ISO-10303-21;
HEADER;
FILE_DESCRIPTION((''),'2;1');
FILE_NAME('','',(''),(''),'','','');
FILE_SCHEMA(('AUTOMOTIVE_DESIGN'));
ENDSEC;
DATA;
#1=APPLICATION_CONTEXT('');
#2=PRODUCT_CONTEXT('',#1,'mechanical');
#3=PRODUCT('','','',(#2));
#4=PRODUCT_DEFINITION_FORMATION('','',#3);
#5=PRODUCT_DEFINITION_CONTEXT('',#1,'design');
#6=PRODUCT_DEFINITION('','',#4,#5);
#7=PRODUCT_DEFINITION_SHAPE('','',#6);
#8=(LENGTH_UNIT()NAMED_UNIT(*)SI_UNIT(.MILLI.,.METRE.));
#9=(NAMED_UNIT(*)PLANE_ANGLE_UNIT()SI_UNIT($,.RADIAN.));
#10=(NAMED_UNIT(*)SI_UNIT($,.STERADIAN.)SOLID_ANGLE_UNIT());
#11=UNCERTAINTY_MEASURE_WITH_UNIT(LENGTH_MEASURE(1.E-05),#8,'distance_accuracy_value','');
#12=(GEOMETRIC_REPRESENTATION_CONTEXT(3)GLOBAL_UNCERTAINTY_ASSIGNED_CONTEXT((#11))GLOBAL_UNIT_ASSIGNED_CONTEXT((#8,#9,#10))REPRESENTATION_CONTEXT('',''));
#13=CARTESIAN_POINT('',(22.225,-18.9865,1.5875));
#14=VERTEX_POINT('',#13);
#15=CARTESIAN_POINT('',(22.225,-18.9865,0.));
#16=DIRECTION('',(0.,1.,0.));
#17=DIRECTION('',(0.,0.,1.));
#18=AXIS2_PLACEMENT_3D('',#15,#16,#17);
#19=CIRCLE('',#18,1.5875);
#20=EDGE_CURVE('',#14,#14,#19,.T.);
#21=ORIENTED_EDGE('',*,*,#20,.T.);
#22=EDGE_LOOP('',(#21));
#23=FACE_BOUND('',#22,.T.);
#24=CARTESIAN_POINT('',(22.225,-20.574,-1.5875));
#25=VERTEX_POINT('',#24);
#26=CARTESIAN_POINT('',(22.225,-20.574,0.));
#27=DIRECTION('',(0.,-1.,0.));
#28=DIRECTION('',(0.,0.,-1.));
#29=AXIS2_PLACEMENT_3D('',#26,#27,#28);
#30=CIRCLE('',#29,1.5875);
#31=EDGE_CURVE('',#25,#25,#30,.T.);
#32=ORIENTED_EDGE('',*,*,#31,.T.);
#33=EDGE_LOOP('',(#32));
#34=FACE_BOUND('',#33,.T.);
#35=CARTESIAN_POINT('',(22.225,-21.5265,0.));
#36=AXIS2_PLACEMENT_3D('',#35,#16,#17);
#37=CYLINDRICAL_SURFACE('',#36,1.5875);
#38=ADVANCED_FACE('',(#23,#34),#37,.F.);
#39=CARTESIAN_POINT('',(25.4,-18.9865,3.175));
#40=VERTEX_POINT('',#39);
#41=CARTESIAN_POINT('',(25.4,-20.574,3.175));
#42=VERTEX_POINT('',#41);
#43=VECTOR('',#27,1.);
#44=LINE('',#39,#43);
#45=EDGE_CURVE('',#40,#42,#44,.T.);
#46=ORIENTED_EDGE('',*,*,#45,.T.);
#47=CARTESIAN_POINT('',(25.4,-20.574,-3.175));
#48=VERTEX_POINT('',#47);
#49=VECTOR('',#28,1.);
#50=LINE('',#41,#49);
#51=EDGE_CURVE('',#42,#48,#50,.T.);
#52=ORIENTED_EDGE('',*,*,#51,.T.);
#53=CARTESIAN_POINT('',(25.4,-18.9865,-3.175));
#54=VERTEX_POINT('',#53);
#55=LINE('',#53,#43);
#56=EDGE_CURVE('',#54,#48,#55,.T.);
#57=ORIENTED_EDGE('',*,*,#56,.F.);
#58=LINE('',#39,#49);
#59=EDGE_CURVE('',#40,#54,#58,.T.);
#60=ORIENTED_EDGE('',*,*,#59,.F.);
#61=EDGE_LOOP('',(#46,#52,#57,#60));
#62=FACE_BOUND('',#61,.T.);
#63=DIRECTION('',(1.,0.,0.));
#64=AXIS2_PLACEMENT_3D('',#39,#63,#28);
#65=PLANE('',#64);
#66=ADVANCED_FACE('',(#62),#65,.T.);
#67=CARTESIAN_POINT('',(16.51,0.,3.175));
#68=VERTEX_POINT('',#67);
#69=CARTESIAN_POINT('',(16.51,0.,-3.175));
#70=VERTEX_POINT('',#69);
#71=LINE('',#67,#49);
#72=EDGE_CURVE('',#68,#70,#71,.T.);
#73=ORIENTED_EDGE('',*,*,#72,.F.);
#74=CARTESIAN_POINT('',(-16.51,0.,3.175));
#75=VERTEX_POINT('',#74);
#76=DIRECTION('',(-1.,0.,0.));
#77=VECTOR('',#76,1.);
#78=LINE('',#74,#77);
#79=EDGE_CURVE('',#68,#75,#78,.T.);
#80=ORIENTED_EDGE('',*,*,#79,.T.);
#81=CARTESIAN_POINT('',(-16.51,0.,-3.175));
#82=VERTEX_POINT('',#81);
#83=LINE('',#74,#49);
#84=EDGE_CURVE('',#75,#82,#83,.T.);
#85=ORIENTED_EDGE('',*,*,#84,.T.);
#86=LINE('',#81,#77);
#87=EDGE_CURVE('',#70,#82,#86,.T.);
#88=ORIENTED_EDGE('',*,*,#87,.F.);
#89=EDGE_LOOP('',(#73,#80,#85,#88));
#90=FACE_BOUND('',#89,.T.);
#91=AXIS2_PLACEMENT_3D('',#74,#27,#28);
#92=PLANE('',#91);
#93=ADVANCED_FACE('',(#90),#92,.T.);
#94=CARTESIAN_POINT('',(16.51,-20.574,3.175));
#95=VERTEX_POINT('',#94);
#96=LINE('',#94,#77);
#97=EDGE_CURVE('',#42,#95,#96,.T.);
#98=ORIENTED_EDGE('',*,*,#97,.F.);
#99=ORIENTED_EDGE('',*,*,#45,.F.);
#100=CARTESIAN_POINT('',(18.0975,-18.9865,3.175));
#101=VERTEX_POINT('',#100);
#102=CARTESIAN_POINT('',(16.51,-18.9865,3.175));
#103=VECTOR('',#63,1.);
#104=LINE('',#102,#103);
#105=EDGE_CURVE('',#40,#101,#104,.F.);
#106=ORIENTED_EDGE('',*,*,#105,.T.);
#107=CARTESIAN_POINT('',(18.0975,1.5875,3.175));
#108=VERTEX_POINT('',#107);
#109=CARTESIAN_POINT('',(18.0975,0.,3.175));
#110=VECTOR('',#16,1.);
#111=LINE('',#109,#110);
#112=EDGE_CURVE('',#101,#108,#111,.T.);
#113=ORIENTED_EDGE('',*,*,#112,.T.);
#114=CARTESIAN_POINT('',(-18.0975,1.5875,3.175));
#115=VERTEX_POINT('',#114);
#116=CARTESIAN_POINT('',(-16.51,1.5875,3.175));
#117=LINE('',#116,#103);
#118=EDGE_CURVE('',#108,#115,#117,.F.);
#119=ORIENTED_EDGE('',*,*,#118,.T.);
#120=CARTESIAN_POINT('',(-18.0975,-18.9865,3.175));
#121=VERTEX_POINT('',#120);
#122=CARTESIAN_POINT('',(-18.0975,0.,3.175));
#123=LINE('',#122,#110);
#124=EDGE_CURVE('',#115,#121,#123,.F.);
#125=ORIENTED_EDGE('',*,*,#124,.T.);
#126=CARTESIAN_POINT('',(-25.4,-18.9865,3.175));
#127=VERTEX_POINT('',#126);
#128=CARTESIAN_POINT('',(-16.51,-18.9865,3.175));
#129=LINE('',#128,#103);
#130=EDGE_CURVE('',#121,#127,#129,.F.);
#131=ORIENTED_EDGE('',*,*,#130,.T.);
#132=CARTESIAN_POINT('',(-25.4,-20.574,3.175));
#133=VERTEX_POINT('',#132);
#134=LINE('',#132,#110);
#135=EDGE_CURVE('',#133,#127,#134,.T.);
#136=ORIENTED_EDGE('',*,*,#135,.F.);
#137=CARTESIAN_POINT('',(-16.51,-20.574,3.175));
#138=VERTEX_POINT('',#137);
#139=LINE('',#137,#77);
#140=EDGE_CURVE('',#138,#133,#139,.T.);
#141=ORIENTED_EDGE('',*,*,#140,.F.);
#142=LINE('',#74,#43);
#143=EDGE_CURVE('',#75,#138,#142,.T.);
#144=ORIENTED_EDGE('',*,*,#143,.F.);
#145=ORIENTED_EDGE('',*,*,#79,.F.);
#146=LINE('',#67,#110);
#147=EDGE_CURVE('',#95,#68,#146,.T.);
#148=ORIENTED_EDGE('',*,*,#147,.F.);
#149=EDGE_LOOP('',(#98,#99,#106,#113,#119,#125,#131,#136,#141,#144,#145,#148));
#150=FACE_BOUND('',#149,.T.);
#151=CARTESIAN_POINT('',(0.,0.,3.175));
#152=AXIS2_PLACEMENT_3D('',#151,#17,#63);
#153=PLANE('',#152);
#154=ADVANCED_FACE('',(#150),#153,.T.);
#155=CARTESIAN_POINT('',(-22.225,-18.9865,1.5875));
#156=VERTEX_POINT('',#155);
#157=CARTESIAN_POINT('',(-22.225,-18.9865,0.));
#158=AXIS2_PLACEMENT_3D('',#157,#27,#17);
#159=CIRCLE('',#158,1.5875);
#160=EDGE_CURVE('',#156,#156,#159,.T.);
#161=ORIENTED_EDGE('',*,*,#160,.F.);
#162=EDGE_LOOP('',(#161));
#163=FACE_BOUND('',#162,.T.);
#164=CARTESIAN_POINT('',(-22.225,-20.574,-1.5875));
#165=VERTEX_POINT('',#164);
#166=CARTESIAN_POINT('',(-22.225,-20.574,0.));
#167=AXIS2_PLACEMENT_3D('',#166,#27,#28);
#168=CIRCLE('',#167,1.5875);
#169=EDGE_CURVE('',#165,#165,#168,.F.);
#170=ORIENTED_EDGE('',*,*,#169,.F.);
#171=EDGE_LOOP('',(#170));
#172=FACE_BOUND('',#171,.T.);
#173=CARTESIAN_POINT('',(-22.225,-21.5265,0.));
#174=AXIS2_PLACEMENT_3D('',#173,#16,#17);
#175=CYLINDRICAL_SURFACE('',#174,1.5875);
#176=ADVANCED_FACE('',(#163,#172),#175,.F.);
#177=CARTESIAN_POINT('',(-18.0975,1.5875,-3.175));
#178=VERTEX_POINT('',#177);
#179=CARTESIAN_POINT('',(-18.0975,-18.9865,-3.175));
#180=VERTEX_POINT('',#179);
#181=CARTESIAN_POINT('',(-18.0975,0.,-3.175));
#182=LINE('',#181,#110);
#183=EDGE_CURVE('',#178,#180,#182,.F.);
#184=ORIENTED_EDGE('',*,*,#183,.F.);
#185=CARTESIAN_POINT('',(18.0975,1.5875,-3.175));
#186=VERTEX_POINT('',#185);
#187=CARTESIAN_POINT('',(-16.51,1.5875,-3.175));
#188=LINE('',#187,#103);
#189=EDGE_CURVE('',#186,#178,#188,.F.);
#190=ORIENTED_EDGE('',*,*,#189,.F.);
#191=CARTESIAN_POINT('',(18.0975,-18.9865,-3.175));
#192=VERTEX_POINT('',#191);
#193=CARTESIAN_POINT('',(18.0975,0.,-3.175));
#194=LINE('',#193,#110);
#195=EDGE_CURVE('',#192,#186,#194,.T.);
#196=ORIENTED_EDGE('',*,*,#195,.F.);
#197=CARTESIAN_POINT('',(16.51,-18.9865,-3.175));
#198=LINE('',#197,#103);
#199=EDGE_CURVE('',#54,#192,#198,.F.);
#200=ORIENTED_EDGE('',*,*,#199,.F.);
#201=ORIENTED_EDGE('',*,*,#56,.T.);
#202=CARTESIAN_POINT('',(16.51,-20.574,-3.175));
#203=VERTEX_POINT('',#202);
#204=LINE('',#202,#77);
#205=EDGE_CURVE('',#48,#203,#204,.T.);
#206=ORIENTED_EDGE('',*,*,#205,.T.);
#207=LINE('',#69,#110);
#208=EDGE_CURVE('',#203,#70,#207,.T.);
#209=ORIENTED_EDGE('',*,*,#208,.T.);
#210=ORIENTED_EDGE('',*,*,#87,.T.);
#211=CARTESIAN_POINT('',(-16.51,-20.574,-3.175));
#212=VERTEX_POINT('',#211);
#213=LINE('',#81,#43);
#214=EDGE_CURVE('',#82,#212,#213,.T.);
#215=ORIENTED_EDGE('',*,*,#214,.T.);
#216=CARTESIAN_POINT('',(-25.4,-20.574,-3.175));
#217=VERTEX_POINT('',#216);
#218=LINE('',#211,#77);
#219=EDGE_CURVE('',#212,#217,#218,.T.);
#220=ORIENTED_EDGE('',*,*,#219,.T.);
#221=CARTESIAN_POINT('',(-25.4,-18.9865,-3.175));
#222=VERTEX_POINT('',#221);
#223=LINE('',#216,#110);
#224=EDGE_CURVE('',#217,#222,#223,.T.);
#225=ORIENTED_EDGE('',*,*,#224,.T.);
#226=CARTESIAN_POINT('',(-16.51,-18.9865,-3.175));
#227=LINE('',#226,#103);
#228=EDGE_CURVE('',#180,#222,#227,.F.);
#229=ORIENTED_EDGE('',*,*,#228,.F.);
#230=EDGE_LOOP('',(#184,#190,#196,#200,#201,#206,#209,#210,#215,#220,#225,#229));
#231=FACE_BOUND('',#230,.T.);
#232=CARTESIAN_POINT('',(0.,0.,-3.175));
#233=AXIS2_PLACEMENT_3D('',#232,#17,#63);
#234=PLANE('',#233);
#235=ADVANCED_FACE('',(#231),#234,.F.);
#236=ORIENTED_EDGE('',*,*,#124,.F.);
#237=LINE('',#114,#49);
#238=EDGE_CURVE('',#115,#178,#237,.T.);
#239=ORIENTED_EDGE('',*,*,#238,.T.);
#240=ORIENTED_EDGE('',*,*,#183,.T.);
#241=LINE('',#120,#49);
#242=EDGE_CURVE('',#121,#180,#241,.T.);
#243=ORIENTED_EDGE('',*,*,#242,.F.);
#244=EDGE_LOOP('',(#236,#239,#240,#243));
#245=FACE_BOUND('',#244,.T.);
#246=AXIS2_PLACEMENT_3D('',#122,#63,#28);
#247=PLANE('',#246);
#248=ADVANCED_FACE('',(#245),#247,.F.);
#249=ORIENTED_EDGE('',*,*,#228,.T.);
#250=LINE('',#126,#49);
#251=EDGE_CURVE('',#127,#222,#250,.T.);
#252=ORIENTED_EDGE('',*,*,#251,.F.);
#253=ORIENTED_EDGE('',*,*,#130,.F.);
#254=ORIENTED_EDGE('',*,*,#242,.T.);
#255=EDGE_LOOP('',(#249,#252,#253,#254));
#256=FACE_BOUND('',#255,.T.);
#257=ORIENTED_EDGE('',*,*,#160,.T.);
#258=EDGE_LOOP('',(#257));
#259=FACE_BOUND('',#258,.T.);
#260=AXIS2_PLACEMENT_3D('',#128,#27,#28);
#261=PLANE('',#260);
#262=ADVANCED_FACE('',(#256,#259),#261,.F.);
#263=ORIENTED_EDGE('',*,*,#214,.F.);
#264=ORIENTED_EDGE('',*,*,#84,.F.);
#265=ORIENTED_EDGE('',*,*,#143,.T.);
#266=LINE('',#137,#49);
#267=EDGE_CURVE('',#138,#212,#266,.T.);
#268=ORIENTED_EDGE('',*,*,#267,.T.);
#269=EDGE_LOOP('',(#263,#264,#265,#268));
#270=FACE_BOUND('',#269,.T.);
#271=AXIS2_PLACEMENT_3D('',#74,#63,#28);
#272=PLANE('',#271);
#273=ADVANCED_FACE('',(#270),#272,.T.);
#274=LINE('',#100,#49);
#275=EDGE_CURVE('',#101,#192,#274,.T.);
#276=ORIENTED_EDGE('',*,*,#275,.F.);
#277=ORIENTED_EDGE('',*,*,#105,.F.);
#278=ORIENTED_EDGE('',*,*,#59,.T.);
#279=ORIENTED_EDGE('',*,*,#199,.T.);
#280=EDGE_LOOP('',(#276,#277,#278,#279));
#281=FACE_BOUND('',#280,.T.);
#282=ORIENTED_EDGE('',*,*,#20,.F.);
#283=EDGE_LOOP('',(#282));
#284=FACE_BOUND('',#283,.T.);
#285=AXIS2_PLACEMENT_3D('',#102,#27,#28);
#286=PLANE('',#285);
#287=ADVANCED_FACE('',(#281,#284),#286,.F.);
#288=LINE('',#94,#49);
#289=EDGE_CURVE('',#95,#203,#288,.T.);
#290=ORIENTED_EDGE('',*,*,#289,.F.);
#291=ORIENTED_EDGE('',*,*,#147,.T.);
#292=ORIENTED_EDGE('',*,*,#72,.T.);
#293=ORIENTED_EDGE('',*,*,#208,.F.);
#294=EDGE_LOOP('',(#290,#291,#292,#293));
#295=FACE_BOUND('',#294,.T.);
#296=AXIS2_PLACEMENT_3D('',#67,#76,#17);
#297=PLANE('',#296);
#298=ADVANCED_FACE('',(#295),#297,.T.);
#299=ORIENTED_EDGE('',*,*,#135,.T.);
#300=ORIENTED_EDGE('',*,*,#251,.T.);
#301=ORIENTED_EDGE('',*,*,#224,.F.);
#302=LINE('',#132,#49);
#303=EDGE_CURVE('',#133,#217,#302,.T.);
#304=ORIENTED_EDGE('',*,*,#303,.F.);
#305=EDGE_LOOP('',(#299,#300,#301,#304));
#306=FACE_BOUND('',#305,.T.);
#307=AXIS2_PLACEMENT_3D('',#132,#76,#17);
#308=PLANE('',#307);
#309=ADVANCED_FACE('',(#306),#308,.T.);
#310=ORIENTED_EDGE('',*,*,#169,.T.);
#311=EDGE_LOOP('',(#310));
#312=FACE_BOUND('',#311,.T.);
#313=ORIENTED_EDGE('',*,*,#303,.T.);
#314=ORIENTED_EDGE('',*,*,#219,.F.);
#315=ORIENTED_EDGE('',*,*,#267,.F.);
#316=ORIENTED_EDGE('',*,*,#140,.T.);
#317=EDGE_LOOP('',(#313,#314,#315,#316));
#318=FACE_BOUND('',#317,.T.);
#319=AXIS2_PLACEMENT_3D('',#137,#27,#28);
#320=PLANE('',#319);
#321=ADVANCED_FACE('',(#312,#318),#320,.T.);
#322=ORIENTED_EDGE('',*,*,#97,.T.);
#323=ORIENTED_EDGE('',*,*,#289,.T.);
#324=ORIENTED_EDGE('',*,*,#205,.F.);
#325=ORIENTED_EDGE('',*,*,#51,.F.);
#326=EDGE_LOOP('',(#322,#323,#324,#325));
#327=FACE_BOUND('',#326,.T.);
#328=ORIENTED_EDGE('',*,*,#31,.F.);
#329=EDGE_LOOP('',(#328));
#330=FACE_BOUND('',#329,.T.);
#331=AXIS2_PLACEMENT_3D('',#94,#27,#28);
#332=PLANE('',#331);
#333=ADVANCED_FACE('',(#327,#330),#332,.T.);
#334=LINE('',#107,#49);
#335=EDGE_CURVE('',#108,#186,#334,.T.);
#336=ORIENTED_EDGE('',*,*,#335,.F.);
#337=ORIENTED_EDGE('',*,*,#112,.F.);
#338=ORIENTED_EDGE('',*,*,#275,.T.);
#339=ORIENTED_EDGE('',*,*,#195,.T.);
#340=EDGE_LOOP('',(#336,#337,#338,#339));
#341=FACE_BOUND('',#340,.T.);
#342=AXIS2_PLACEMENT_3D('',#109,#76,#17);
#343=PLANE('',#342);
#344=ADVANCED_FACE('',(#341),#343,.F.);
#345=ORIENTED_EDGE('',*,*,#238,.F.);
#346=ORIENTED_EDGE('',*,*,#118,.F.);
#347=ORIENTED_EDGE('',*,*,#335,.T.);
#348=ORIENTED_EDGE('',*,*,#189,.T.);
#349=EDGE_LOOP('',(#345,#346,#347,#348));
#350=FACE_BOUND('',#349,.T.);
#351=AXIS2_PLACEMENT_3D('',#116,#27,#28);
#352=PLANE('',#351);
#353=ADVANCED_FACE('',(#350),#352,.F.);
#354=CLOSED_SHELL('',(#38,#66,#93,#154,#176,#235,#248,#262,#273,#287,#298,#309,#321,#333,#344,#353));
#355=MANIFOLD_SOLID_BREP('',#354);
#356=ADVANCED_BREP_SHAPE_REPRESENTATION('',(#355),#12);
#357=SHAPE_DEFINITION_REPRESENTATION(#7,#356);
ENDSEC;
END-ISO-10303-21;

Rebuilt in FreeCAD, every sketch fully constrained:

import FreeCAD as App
import Part
import Sketcher

V = App.Vector
Q = App.Units.Quantity

doc = App.newDocument("Part")
body = doc.addObject("PartDesign::Body", "Body")

sketch1 = body.newObject("Sketcher::SketchObject", "Sketch")
sketch1.AttachmentSupport = (doc.getObject("XY_Plane"), [""])
sketch1.MapMode = "FlatFace"
sketch1.addGeometry([
    Part.LineSegment(V(-25.4, -20.574, 0), V(-16.51, -20.574, 0)),
    Part.LineSegment(V(-16.51, -20.574, 0), V(-16.51, 0, 0)),
    Part.LineSegment(V(-16.51, 0, 0), V(16.51, 0, 0)),
    Part.LineSegment(V(16.51, 0, 0), V(16.51, -20.574, 0)),
    Part.LineSegment(V(16.51, -20.574, 0), V(25.4, -20.574, 0)),
    Part.LineSegment(V(25.4, -20.574, 0), V(25.4, -18.9865, 0)),
    Part.LineSegment(V(25.4, -18.9865, 0), V(18.0975, -18.9865, 0)),
    Part.LineSegment(V(18.0975, -18.9865, 0), V(18.0975, 1.5875, 0)),
    Part.LineSegment(V(18.0975, 1.5875, 0), V(-18.0975, 1.5875, 0)),
    Part.LineSegment(V(-18.0975, 1.5875, 0), V(-18.0975, -18.9865, 0)),
    Part.LineSegment(V(-18.0975, -18.9865, 0), V(-25.4, -18.9865, 0)),
    Part.LineSegment(V(-25.4, -18.9865, 0), V(-25.4, -20.574, 0)),
], False)
sketch1.addConstraint([
    Sketcher.Constraint("Coincident", 0, 2, 1, 1),
    Sketcher.Constraint("Coincident", 1, 2, 2, 1),
    Sketcher.Constraint("Coincident", 2, 2, 3, 1),
    Sketcher.Constraint("Coincident", 3, 2, 4, 1),
    Sketcher.Constraint("Coincident", 4, 2, 5, 1),
    Sketcher.Constraint("Coincident", 5, 2, 6, 1),
    Sketcher.Constraint("Coincident", 6, 2, 7, 1),
    Sketcher.Constraint("Coincident", 7, 2, 8, 1),
    Sketcher.Constraint("Coincident", 8, 2, 9, 1),
    Sketcher.Constraint("Coincident", 9, 2, 10, 1),
    Sketcher.Constraint("Coincident", 10, 2, 11, 1),
    Sketcher.Constraint("Coincident", 11, 2, 0, 1),
    Sketcher.Constraint("Horizontal", 0),
    Sketcher.Constraint("Vertical", 1),
    Sketcher.Constraint("Horizontal", 2),
    Sketcher.Constraint("Vertical", 3),
    Sketcher.Constraint("Horizontal", 4),
    Sketcher.Constraint("Vertical", 5),
    Sketcher.Constraint("Horizontal", 6),
    Sketcher.Constraint("Vertical", 7),
    Sketcher.Constraint("Horizontal", 8),
    Sketcher.Constraint("Vertical", 9),
    Sketcher.Constraint("Horizontal", 10),
    Sketcher.Constraint("Vertical", 11),
    Sketcher.Constraint("Symmetric", 1, 2, 2, 2, -1, 1),
    Sketcher.Constraint("Symmetric", 6, 2, 9, 2, -2),
    Sketcher.Constraint("Symmetric", 4, 2, 11, 2, -2),
    Sketcher.Constraint("Equal", 3, 7),
    Sketcher.Constraint("DistanceX", 2, 1, 2, 2, Q("1.3 in")),
    Sketcher.Constraint("DistanceX", -1, 1, 4, 2, Q("1 in")),
    Sketcher.Constraint("DistanceY", 1, 1, 1, 2, Q("0.81 in")),
    Sketcher.Constraint("DistanceX", 8, 2, 8, 1, Q("1.425 in")),
    Sketcher.Constraint("DistanceY", 5, 1, 5, 2, Q("0.0625 in")),
])
pad1 = body.newObject("PartDesign::Pad", "Pad")
pad1.Profile = sketch1
pad1.Length = Q("0.25 in")
pad1.Midplane = True

sketch2 = body.newObject("Sketcher::SketchObject", "Sketch001")
sketch2.AttachmentSupport = (doc.getObject("XZ_Plane"), [""])
sketch2.MapMode = "FlatFace"
sketch2.AttachmentOffset = App.Placement(V(0, 0, 0.7475 * 25.4), App.Rotation())
sketch2.addGeometry(Part.Circle(V(22.225, 0, 0), V(0, 0, 1), 1.5875), False)
sketch2.addConstraint([
    Sketcher.Constraint("PointOnObject", 0, 3, -1),
    Sketcher.Constraint("Diameter", 0, Q("0.125 in")),
    Sketcher.Constraint("DistanceX", -1, 1, 0, 3, Q("0.875 in")),
])
pocket1 = body.newObject("PartDesign::Pocket", "Pocket")
pocket1.Profile = sketch2
pocket1.Length = Q("0.1 in")
pocket1.Reversed = True
doc.recompute()

mirrored = body.newObject("PartDesign::Mirrored", "Mirrored")
mirrored.Originals = [pocket1]
mirrored.MirrorPlane = (doc.getObject("YZ_Plane"), [""])
body.Tip = mirrored

doc.recompute()
